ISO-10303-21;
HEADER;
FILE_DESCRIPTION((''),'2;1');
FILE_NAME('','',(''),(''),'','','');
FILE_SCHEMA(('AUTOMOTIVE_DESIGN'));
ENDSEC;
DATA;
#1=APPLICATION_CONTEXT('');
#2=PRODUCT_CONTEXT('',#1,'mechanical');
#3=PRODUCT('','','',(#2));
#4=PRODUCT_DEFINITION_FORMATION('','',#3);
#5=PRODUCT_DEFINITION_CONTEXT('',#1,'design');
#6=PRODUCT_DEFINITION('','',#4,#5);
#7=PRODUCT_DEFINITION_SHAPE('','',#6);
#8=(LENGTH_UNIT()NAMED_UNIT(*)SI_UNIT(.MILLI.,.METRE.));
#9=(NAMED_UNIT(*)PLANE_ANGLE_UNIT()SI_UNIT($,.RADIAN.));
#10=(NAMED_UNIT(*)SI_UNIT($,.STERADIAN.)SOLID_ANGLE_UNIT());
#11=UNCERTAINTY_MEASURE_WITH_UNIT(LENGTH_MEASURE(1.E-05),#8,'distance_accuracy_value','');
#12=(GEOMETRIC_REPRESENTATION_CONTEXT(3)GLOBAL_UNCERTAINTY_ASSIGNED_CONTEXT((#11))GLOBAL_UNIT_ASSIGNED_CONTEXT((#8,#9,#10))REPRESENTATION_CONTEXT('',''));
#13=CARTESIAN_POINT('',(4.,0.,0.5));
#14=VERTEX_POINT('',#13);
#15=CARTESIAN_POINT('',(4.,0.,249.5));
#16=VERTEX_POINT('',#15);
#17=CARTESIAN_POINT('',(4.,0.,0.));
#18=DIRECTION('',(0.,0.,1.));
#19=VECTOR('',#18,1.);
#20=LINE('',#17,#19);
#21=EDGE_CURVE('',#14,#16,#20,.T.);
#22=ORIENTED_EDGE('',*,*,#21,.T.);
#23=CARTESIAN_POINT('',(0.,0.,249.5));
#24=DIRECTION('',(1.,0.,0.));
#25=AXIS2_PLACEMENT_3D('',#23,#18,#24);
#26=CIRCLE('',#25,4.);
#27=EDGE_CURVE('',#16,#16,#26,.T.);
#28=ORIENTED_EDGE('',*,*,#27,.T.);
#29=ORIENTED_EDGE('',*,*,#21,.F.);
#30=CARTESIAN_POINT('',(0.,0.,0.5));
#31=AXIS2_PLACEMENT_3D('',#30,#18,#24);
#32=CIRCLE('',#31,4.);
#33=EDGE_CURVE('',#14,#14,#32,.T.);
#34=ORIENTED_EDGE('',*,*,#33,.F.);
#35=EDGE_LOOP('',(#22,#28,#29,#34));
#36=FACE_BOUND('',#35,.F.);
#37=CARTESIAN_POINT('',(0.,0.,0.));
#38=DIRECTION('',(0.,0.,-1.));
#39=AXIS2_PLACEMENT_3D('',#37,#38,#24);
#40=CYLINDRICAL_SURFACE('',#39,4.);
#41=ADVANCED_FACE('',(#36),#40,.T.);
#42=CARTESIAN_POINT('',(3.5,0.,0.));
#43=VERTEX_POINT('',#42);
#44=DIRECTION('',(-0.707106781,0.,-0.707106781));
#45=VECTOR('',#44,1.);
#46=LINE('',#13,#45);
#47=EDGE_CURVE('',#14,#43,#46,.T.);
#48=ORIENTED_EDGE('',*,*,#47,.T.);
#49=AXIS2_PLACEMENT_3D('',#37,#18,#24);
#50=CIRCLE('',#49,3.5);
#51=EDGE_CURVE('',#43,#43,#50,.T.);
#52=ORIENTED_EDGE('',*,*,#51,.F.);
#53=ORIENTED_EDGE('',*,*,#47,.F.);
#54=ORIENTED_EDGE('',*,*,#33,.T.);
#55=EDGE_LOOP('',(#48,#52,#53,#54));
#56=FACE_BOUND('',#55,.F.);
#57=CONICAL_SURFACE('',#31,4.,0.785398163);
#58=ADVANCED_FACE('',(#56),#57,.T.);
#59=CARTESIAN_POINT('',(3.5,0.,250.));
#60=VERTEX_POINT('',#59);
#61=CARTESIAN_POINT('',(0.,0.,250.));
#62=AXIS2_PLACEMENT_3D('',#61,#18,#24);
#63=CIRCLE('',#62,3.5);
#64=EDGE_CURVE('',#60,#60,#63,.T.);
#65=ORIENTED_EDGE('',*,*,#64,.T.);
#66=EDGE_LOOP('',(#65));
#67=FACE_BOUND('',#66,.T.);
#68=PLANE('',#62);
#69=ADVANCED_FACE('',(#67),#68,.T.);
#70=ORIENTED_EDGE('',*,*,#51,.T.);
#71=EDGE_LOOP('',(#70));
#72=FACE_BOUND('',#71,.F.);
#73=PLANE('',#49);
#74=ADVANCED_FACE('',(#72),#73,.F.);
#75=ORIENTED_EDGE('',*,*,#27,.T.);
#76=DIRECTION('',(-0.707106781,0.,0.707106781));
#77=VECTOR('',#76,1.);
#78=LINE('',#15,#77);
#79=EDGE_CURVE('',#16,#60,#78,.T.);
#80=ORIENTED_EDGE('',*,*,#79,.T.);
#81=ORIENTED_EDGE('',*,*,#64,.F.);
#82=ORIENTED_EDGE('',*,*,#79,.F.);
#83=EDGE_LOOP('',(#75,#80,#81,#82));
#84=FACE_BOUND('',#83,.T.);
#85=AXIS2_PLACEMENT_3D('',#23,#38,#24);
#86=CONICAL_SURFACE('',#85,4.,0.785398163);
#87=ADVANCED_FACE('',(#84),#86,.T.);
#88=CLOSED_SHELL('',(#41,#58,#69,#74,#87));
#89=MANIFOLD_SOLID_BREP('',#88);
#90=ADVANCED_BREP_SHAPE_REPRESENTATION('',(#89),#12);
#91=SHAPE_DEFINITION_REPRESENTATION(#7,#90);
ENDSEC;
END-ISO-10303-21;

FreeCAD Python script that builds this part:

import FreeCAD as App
import Part
import Sketcher
from FreeCAD import Vector
Q = App.Units.Quantity


def edges_at(feature, points):
    """Names of the edges that pass closest to the given points."""
    edges = feature.Shape.Edges
    near = lambda p: min(range(len(edges)), key=lambda i: edges[i].distToShape(Part.Vertex(*p))[0])
    return sorted({f"Edge{near(p) + 1}" for p in points})

doc = App.newDocument("Part")
body = doc.addObject("PartDesign::Body", "Body")

sketch1 = doc.addObject("Sketcher::SketchObject", "Sketch")
body.addObject(sketch1)
sketch1.AttachmentSupport = (doc.XY_Plane, [""])
sketch1.MapMode = "FlatFace"
sketch1.addGeometry(Part.Circle(Vector(0, 0, 0), Vector(0, 0, 1), 4), False)
sketch1.addConstraint(Sketcher.Constraint("Coincident", 0, 3, -1, 1))
sketch1.addConstraint(Sketcher.Constraint("Diameter", 0, Q("8 mm")))
pad1 = doc.addObject("PartDesign::Pad", "Pad")
body.addObject(pad1)
pad1.Profile = sketch1
pad1.Length = 250
doc.recompute()

chamfer = doc.addObject("PartDesign::Chamfer", "Chamfer")
body.addObject(chamfer)
chamfer.Base = (pad1, edges_at(pad1, [(-4, 0, 0), (-4, 0, 250)]))
chamfer.Size = 0.5

doc.recompute()
